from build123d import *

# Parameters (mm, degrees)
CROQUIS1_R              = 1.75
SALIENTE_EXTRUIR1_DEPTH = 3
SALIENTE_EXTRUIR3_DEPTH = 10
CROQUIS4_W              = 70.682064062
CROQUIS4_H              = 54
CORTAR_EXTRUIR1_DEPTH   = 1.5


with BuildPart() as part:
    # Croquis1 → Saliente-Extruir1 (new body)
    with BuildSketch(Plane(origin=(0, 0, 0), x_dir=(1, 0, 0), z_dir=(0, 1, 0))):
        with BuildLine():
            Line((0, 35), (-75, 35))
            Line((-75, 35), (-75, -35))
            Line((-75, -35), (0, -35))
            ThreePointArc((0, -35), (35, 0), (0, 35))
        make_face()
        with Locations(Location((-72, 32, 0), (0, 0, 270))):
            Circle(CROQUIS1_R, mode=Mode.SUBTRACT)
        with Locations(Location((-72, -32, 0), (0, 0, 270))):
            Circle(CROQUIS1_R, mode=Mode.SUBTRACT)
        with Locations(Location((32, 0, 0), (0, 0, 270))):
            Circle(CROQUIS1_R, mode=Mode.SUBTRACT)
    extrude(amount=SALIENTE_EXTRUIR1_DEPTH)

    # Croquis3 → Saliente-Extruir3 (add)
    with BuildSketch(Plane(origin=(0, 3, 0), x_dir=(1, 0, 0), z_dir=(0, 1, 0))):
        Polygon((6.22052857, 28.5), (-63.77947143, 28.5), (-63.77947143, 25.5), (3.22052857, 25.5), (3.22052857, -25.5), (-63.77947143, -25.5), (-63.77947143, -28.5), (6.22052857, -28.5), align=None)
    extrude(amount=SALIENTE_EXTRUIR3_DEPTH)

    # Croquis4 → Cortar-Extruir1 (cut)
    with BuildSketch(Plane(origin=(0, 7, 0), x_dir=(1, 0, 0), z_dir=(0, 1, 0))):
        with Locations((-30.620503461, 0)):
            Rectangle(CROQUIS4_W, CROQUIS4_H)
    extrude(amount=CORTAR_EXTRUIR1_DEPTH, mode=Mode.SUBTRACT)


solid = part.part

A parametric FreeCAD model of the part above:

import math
import FreeCAD as App
import Part
import Sketcher
from FreeCAD import Vector

doc = App.newDocument("Part")
body = doc.addObject("PartDesign::Body", "Body")

# Sketch on XZ plane
sketch1 = body.newObject("Sketcher::SketchObject", "Sketch")
sketch1.AttachmentSupport = (doc.getObject("XZ_Plane"), [""])
sketch1.MapMode = "FlatFace"
sketch1.addGeometry([
    Part.LineSegment(Vector(0, -35, 0), Vector(-75, -35, 0)),  # 0
    Part.LineSegment(Vector(-75, -35, 0), Vector(-75, 35, 0)),  # 1
    Part.LineSegment(Vector(-75, 35, 0), Vector(0, 35, 0)),  # 2
    Part.ArcOfCircle(Part.Circle(Vector(0, 0, 0), Vector(0, 0, 1), 35), math.radians(-90), math.radians(90)),  # 3
    Part.Circle(Vector(-72, 32, 0), Vector(0, 0, 1), 1.8),  # 4
    Part.Circle(Vector(-72, -32, 0), Vector(0, 0, 1), 1.8),  # 5
    Part.Circle(Vector(32, 0, 0), Vector(0, 0, 1), 1.8),  # 6
], False)
sketch1.addConstraint([
    Sketcher.Constraint("Coincident", 0, 2, 1, 1),
    Sketcher.Constraint("Coincident", 1, 2, 2, 1),
    Sketcher.Constraint("Tangent", 2, 2, 3, 2),
    Sketcher.Constraint("Tangent", 3, 1, 0, 1),
    Sketcher.Constraint("Horizontal", 0),
    Sketcher.Constraint("Vertical", 1),
    Sketcher.Constraint("Horizontal", 2),
    Sketcher.Constraint("Coincident", 3, 3, -1, 1),
    Sketcher.Constraint("Equal", 4, 5),
    Sketcher.Constraint("Equal", 5, 6),
    Sketcher.Constraint("Symmetric", 4, 3, 5, 3, -1),
    Sketcher.Constraint("PointOnObject", 6, 3, -1),
    Sketcher.Constraint("Radius", 3, 35.0),
    Sketcher.Constraint("Diameter", 4, 3.5),
    Sketcher.Constraint("DistanceX", 0, 2, 0, 1, 75.0),
    Sketcher.Constraint("DistanceX", 4, 3, -1, 1, 72.0),
    Sketcher.Constraint("DistanceY", -1, 1, 4, 3, 32.0),
    Sketcher.Constraint("DistanceX", -1, 1, 6, 3, 32.0),
])
pad1 = body.newObject("PartDesign::Pad", "Pad")
pad1.Profile = sketch1
pad1.Length = 3
pad1.Reversed = True

# Sketch on XZ plane
sketch2 = body.newObject("Sketcher::SketchObject", "Sketch001")
sketch2.AttachmentSupport = (doc.getObject("XZ_Plane"), [""])
sketch2.MapMode = "FlatFace"
sketch2.AttachmentOffset = App.Placement(Vector(0, 0, -3), App.Rotation())
sketch2.addGeometry([
    Part.LineSegment(Vector(6.2, -28.5, 0), Vector(-63.8, -28.5, 0)),  # 0
    Part.LineSegment(Vector(-63.8, -28.5, 0), Vector(-63.8, -25.5, 0)),  # 1
    Part.LineSegment(Vector(-63.8, -25.5, 0), Vector(3.2, -25.5, 0)),  # 2
    Part.LineSegment(Vector(3.2, -25.5, 0), Vector(3.2, 25.5, 0)),  # 3
    Part.LineSegment(Vector(3.2, 25.5, 0), Vector(-63.8, 25.5, 0)),  # 4
    Part.LineSegment(Vector(-63.8, 25.5, 0), Vector(-63.8, 28.5, 0)),  # 5
    Part.LineSegment(Vector(-63.8, 28.5, 0), Vector(6.2, 28.5, 0)),  # 6
    Part.LineSegment(Vector(6.2, 28.5, 0), Vector(6.2, -28.5, 0)),  # 7
], False)
sketch2.addConstraint([
    Sketcher.Constraint("Coincident", 0, 2, 1, 1),
    Sketcher.Constraint("Coincident", 1, 2, 2, 1),
    Sketcher.Constraint("Coincident", 2, 2, 3, 1),
    Sketcher.Constraint("Coincident", 3, 2, 4, 1),
    Sketcher.Constraint("Coincident", 4, 2, 5, 1),
    Sketcher.Constraint("Coincident", 5, 2, 6, 1),
    Sketcher.Constraint("Coincident", 6, 2, 7, 1),
    Sketcher.Constraint("Coincident", 7, 2, 0, 1),
    Sketcher.Constraint("Horizontal", 0),
    Sketcher.Constraint("Vertical", 1),
    Sketcher.Constraint("Horizontal", 2),
    Sketcher.Constraint("Vertical", 3),
    Sketcher.Constraint("Horizontal", 4),
    Sketcher.Constraint("Vertical", 5),
    Sketcher.Constraint("Horizontal", 6),
    Sketcher.Constraint("Vertical", 7),
    Sketcher.Constraint("Symmetric", 1, 2, 4, 2, -1),
    Sketcher.Constraint("Equal", 1, 5),
    Sketcher.Constraint("DistanceX", 0, 2, 0, 1, 70.0),
    Sketcher.Constraint("DistanceX", 2, 1, 2, 2, 67.0),
    Sketcher.Constraint("DistanceY", 1, 1, 1, 2, 3.0),
    Sketcher.Constraint("DistanceY", 3, 1, 3, 2, 51.0),
    Sketcher.Constraint("DistanceX", 0, 2, -1, 1, 63.779471),
])
pad2 = body.newObject("PartDesign::Pad", "Pad001")
pad2.Profile = sketch2
pad2.Length = 10
pad2.Reversed = True

# Sketch on XZ plane
sketch3 = body.newObject("Sketcher::SketchObject", "Sketch002")
sketch3.AttachmentSupport = (doc.getObject("XZ_Plane"), [""])
sketch3.MapMode = "FlatFace"
sketch3.AttachmentOffset = App.Placement(Vector(0, 0, -7), App.Rotation())
sketch3.addGeometry([
    Part.LineSegment(Vector(-66, -27, 0), Vector(-66, 27, 0)),
    Part.LineSegment(Vector(-66, 27, 0), Vector(5, 27, 0)),
    Part.LineSegment(Vector(5, 27, 0), Vector(5, -27, 0)),
    Part.LineSegment(Vector(5, -27, 0), Vector(-66, -27, 0)),
], False)
sketch3.addConstraint([
    Sketcher.Constraint("Coincident", 0, 2, 1, 1),
    Sketcher.Constraint("Coincident", 1, 2, 2, 1),
    Sketcher.Constraint("Coincident", 2, 2, 3, 1),
    Sketcher.Constraint("Coincident", 3, 2, 0, 1),
    Sketcher.Constraint("Vertical", 0),
    Sketcher.Constraint("Horizontal", 1),
    Sketcher.Constraint("Vertical", 2),
    Sketcher.Constraint("Horizontal", 3),
    Sketcher.Constraint("DistanceY", 0, 1, 0, 2, 54.0),
    Sketcher.Constraint("DistanceY", -1, 1, 0, 2, 27.0),
    Sketcher.Constraint("DistanceX", 1, 1, 1, 2, 70.682064),
    Sketcher.Constraint("DistanceX", -1, 1, 1, 2, 4.720529),
])
pocket1 = body.newObject("PartDesign::Pocket", "Pocket")
pocket1.Profile = sketch3
pocket1.Length = 1.5

doc.recompute()
